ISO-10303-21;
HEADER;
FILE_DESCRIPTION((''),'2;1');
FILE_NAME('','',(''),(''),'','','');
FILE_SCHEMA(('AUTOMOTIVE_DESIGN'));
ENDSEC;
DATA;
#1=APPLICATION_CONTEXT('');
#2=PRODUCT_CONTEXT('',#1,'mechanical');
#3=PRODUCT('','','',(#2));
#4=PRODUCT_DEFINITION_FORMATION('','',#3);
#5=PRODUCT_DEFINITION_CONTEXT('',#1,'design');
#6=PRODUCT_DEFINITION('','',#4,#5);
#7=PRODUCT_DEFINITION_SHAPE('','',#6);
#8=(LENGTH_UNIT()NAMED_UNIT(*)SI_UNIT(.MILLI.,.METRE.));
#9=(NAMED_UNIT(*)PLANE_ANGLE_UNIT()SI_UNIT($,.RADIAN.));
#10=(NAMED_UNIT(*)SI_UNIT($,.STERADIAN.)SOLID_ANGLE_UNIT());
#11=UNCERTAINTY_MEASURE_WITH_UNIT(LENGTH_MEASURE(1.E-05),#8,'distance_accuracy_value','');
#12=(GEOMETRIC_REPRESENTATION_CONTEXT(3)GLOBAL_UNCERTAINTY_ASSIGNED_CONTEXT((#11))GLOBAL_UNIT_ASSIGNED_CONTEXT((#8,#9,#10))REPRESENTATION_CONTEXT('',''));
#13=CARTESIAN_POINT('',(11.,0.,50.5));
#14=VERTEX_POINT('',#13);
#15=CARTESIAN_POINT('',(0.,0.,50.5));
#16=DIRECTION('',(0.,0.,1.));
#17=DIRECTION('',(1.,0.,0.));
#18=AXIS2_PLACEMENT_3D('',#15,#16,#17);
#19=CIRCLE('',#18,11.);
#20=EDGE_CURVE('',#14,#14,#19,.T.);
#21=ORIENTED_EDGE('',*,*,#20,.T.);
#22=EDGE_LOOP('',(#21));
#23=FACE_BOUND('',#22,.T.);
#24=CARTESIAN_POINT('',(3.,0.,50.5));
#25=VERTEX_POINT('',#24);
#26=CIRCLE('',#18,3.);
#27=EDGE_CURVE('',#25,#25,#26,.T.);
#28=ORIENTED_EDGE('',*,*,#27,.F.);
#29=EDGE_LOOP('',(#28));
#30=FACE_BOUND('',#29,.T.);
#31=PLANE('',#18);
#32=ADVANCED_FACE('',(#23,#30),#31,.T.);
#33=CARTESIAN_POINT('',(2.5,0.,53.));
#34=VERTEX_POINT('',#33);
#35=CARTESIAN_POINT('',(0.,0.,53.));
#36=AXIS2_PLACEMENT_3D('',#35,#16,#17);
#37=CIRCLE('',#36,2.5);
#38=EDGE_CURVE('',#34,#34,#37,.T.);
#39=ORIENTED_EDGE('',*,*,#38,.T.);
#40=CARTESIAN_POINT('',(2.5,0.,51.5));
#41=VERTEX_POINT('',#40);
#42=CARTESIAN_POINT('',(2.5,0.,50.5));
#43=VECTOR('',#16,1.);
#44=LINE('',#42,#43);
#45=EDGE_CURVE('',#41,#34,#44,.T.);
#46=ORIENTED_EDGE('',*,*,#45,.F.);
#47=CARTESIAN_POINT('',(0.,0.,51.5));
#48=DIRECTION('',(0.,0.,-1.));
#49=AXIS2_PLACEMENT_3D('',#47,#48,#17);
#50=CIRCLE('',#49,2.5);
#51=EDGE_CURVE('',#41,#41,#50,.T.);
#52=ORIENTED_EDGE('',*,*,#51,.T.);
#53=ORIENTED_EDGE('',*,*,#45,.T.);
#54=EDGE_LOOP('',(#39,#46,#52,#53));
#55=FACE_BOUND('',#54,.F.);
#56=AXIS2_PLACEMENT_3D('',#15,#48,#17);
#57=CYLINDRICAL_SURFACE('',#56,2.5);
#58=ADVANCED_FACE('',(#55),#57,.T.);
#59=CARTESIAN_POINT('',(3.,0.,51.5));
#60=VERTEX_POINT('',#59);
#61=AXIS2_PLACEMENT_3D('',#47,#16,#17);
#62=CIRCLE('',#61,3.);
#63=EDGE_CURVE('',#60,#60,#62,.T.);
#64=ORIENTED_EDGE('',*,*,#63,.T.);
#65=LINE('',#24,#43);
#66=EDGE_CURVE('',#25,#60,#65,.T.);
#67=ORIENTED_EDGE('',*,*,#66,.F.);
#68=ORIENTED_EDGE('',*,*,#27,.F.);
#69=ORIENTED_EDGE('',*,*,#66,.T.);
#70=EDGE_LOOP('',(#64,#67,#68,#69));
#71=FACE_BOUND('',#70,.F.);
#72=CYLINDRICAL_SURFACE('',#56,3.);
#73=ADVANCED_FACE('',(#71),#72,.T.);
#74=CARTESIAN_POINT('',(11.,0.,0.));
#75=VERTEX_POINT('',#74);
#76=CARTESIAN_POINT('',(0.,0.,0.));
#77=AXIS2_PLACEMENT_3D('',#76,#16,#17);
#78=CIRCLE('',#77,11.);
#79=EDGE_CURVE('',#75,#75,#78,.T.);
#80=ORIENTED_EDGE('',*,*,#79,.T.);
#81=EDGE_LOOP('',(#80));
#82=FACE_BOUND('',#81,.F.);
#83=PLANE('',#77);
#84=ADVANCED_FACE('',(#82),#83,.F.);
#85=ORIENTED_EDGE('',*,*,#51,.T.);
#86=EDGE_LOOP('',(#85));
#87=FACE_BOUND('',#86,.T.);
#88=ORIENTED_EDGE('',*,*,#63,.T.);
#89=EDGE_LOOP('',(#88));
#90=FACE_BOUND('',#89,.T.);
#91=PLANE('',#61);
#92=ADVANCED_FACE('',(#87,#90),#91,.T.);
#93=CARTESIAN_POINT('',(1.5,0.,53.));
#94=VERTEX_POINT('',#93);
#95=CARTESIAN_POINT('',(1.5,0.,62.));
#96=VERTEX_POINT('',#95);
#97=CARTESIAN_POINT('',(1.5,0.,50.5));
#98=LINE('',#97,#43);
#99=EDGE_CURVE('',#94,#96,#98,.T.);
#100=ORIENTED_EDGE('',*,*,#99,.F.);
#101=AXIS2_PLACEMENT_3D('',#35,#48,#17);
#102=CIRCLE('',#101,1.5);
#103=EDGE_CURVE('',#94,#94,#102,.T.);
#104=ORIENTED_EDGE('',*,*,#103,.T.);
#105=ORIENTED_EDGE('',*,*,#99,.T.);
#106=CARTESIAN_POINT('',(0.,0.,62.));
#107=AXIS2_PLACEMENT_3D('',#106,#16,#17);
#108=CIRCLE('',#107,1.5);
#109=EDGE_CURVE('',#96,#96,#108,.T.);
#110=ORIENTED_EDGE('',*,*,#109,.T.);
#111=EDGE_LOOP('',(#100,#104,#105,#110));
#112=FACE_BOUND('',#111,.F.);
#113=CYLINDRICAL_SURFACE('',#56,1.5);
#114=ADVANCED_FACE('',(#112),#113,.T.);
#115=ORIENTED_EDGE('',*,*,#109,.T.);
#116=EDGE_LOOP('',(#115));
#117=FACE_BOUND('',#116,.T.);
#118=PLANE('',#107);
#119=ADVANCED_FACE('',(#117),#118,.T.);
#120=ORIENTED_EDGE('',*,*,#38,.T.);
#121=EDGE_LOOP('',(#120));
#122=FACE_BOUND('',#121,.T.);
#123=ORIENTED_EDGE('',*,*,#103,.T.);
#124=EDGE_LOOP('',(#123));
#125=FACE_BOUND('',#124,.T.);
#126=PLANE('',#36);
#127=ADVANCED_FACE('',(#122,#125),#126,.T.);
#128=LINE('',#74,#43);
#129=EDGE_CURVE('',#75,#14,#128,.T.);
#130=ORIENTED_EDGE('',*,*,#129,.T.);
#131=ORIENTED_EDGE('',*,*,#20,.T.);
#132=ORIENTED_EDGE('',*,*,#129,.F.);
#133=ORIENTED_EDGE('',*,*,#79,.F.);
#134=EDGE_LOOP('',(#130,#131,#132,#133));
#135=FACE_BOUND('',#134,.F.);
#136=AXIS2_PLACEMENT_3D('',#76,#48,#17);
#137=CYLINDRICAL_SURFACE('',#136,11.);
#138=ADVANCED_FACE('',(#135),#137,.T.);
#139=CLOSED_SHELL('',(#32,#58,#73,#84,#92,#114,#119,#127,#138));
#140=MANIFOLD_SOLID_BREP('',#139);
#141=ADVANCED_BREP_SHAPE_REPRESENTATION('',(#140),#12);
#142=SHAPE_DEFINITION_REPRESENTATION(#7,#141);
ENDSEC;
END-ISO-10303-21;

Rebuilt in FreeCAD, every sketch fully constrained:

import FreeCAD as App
import Part
import Sketcher
from FreeCAD import Vector

doc = App.newDocument("Part")
body = doc.addObject("PartDesign::Body", "Body")

sketch1 = doc.addObject("Sketcher::SketchObject", "Sketch")
body.addObject(sketch1)
sketch1.AttachmentSupport = (doc.XY_Plane, [""])
sketch1.MapMode = "FlatFace"
sketch1.addGeometry(Part.Circle(Vector(0, 0, 0), Vector(0, 0, 1), 11), False)
sketch1.addConstraint([
    Sketcher.Constraint("Coincident", 0, 3, -1, 1),
    Sketcher.Constraint("Diameter", 0, 22.0),
])
pad1 = doc.addObject("PartDesign::Pad", "Pad")
body.addObject(pad1)
pad1.Profile = sketch1
pad1.Length = 50.5

sketch2 = doc.addObject("Sketcher::SketchObject", "Sketch001")
body.addObject(sketch2)
sketch2.AttachmentSupport = (doc.XY_Plane, [""])
sketch2.MapMode = "FlatFace"
sketch2.AttachmentOffset = App.Placement(Vector(0, 0, 50.5), App.Rotation())
sketch2.addGeometry(Part.Circle(Vector(0, 0, 0), Vector(0, 0, 1), 3), False)
sketch2.addConstraint([
    Sketcher.Constraint("Coincident", 0, 3, -1, 1),
    Sketcher.Constraint("Diameter", 0, 6.0),
])
pad2 = doc.addObject("PartDesign::Pad", "Pad001")
body.addObject(pad2)
pad2.Profile = sketch2
pad2.Length = 1

sketch3 = doc.addObject("Sketcher::SketchObject", "Sketch002")
body.addObject(sketch3)
sketch3.AttachmentSupport = (doc.XY_Plane, [""])
sketch3.MapMode = "FlatFace"
sketch3.AttachmentOffset = App.Placement(Vector(0, 0, 50.5), App.Rotation())
sketch3.addGeometry(Part.Circle(Vector(0, 0, 0), Vector(0, 0, 1), 2.5), False)
sketch3.addConstraint([
    Sketcher.Constraint("Coincident", 0, 3, -1, 1),
    Sketcher.Constraint("Diameter", 0, 5.0),
])
pad3 = doc.addObject("PartDesign::Pad", "Pad002")
body.addObject(pad3)
pad3.Profile = sketch3
pad3.Length = 2.5

sketch4 = doc.addObject("Sketcher::SketchObject", "Sketch003")
body.addObject(sketch4)
sketch4.AttachmentSupport = (doc.XY_Plane, [""])
sketch4.MapMode = "FlatFace"
sketch4.AttachmentOffset = App.Placement(Vector(0, 0, 50.5), App.Rotation())
sketch4.addGeometry(Part.Circle(Vector(0, 0, 0), Vector(0, 0, 1), 1.5), False)
sketch4.addConstraint([
    Sketcher.Constraint("Coincident", 0, 3, -1, 1),
    Sketcher.Constraint("Diameter", 0, 3.0),
])
pad4 = doc.addObject("PartDesign::Pad", "Pad003")
body.addObject(pad4)
pad4.Profile = sketch4
pad4.Length = 11.5

doc.recompute()
